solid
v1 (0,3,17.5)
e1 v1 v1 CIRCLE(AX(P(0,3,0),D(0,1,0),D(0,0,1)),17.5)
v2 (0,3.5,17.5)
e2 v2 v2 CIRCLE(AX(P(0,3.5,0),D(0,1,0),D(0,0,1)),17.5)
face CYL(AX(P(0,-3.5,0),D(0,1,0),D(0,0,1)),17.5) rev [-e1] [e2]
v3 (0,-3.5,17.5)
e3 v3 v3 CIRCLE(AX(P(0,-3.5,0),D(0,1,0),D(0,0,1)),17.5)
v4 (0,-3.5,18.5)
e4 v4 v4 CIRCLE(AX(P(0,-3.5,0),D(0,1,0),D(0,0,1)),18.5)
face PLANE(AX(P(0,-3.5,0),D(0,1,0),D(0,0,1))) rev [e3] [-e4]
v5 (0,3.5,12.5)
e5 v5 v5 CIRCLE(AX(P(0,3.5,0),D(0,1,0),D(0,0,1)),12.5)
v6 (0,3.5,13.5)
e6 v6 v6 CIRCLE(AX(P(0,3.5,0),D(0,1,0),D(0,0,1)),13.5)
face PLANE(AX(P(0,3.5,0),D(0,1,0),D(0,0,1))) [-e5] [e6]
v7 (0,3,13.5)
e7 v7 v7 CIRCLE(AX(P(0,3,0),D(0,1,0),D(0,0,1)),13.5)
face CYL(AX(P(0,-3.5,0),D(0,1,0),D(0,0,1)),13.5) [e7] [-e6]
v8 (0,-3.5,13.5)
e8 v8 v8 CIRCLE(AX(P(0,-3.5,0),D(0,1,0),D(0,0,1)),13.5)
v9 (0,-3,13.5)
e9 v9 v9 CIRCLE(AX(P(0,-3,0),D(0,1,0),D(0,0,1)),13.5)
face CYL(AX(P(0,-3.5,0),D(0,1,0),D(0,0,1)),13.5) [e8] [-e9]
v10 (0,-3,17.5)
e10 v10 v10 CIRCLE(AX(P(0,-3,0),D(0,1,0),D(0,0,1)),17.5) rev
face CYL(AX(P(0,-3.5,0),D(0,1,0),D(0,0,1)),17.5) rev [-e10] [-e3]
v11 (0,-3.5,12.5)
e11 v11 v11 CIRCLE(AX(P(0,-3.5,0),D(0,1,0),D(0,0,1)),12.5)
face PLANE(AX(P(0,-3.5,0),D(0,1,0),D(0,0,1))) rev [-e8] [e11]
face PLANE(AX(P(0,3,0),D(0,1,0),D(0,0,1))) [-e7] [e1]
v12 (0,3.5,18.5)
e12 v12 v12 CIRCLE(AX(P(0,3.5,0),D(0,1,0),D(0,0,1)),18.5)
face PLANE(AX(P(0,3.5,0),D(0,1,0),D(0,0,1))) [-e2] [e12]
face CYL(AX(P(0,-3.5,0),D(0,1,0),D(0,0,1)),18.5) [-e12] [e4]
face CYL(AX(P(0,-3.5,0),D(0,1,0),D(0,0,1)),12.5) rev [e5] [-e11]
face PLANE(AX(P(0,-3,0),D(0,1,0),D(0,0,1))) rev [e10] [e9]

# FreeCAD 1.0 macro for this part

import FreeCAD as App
import Part
import Sketcher
Q = App.Units.Quantity

doc = App.newDocument("Part")
body = doc.addObject("PartDesign::Body", "Body")

# Sketch on XZ plane
sketch1 = doc.addObject("Sketcher::SketchObject", "Sketch")
body.addObject(sketch1)
sketch1.AttachmentSupport = (doc.XZ_Plane, [""])
sketch1.MapMode = "FlatFace"
sketch1.addGeometry([
    Part.Circle(App.Vector(0, 0, 0), App.Vector(0, 0, 1), 18),
    Part.Circle(App.Vector(0, 0, 0), App.Vector(0, 0, 1), 18),
], False)
sketch1.addConstraint([
    Sketcher.Constraint("Coincident", 0, 3, -1, 1),
    Sketcher.Constraint("Coincident", 1, 3, -1, 1),
    Sketcher.Constraint("Diameter", 0, Q("37 mm")),
    Sketcher.Constraint("Diameter", 1, Q("35 mm")),
])
pad1 = doc.addObject("PartDesign::Pad", "Pad")
body.addObject(pad1)
pad1.Profile = sketch1
pad1.Type = "TwoLengths"
pad1.Length = 3.5
pad1.Length2 = 3.5
pad1.Reversed = True
body2 = doc.addObject("PartDesign::Body", "Body001")

# Sketch on XZ plane
sketch2 = doc.addObject("Sketcher::SketchObject", "Sketch001")
body2.addObject(sketch2)
sketch2.AttachmentSupport = (doc.getObject("XZ_Plane001"), [""])
sketch2.MapMode = "FlatFace"
sketch2.addGeometry([
    Part.Circle(App.Vector(0, 0, 0), App.Vector(0, 0, 1), 14),
    Part.Circle(App.Vector(0, 0, 0), App.Vector(0, 0, 1), 12),
], False)
sketch2.addConstraint([
    Sketcher.Constraint("Coincident", 0, 3, -1, 1),
    Sketcher.Constraint("Coincident", 1, 3, -1, 1),
    Sketcher.Constraint("Diameter", 0, Q("27 mm")),
    Sketcher.Constraint("Diameter", 1, Q("25 mm")),
])
pad2 = doc.addObject("PartDesign::Pad", "Pad001")
body2.addObject(pad2)
pad2.Profile = sketch2
pad2.Type = "TwoLengths"
pad2.Length = 3.5
pad2.Length2 = 3.5
pad2.Reversed = True
body.AllowCompound = True
doc.recompute()

boolean = doc.addObject("PartDesign::Boolean", "Boolean")
body.addObject(boolean)
boolean.Type = "Fuse"
boolean.addObjects([body2])

# Sketch on XZ plane
sketch3 = doc.addObject("Sketcher::SketchObject", "Sketch002")
body.addObject(sketch3)
sketch3.AttachmentSupport = (doc.XZ_Plane, [""])
sketch3.MapMode = "FlatFace"
sketch3.addGeometry([
    Part.Circle(App.Vector(0, 0, 0), App.Vector(0, 0, 1), 18),
    Part.Circle(App.Vector(0, 0, 0), App.Vector(0, 0, 1), 14),
], False)
sketch3.addConstraint([
    Sketcher.Constraint("Coincident", 0, 3, -1, 1),
    Sketcher.Constraint("Coincident", 1, 3, -1, 1),
    Sketcher.Constraint("Diameter", 0, Q("35 mm")),
    Sketcher.Constraint("Diameter", 1, Q("27 mm")),
])
pad3 = doc.addObject("PartDesign::Pad", "Pad002")
body.addObject(pad3)
pad3.Profile = sketch3
pad3.Type = "TwoLengths"
pad3.Length = 3
pad3.Length2 = 3
pad3.Reversed = True

doc.recompute()
